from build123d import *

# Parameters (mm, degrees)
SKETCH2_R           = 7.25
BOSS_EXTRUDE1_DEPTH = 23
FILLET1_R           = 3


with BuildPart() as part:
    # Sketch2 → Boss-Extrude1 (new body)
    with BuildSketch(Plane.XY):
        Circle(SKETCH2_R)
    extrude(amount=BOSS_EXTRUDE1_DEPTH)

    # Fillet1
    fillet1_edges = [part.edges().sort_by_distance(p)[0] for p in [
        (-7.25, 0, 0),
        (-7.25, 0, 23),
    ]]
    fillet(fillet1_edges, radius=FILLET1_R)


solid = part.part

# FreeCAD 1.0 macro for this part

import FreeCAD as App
import Part
import Sketcher
from FreeCAD import Vector


def edges_at(feature, points):
    """Names of the edges that pass closest to the given points."""
    edges = feature.Shape.Edges
    near = lambda p: min(range(len(edges)), key=lambda i: edges[i].distToShape(Part.Vertex(*p))[0])
    return sorted({f"Edge{near(p) + 1}" for p in points})

doc = App.newDocument("Part")
params = doc.addObject("Spreadsheet::Sheet", "Params")
for row, (alias, value) in enumerate([
    ("sketch1_diameter", "14.5 mm"),
    ("pad1_length", "23 mm"),
    ("fillet_radius", "3 mm"),
], start=1):
    params.set(f"A{row}", alias)
    params.set(f"B{row}", "=" + value)
    params.setAlias(f"B{row}", alias)

body = doc.addObject("PartDesign::Body", "Body")

sketch1 = body.newObject("Sketcher::SketchObject", "Sketch")
sketch1.AttachmentSupport = (doc.getObject("XY_Plane"), [""])
sketch1.MapMode = "FlatFace"
sketch1.addGeometry(Part.Circle(Vector(0, 0, 0), Vector(0, 0, 1), 7), False)
sketch1.addConstraint(Sketcher.Constraint("Coincident", 0, 3, -1, 1))
sketch1.addConstraint(Sketcher.Constraint("Diameter", 0, 14.5))
sketch1.setExpression("Constraints[1]", "Params.sketch1_diameter")
pad1 = body.newObject("PartDesign::Pad", "Pad")
pad1.Profile = sketch1
pad1.setExpression("Length", "Params.pad1_length")
doc.recompute()

fillet = body.newObject("PartDesign::Fillet", "Fillet")
fillet.Base = (pad1, edges_at(pad1, [(-7.25, 0, 0), (-7.25, 0, 23)]))
fillet.setExpression("Radius", "Params.fillet_radius")

doc.recompute()
